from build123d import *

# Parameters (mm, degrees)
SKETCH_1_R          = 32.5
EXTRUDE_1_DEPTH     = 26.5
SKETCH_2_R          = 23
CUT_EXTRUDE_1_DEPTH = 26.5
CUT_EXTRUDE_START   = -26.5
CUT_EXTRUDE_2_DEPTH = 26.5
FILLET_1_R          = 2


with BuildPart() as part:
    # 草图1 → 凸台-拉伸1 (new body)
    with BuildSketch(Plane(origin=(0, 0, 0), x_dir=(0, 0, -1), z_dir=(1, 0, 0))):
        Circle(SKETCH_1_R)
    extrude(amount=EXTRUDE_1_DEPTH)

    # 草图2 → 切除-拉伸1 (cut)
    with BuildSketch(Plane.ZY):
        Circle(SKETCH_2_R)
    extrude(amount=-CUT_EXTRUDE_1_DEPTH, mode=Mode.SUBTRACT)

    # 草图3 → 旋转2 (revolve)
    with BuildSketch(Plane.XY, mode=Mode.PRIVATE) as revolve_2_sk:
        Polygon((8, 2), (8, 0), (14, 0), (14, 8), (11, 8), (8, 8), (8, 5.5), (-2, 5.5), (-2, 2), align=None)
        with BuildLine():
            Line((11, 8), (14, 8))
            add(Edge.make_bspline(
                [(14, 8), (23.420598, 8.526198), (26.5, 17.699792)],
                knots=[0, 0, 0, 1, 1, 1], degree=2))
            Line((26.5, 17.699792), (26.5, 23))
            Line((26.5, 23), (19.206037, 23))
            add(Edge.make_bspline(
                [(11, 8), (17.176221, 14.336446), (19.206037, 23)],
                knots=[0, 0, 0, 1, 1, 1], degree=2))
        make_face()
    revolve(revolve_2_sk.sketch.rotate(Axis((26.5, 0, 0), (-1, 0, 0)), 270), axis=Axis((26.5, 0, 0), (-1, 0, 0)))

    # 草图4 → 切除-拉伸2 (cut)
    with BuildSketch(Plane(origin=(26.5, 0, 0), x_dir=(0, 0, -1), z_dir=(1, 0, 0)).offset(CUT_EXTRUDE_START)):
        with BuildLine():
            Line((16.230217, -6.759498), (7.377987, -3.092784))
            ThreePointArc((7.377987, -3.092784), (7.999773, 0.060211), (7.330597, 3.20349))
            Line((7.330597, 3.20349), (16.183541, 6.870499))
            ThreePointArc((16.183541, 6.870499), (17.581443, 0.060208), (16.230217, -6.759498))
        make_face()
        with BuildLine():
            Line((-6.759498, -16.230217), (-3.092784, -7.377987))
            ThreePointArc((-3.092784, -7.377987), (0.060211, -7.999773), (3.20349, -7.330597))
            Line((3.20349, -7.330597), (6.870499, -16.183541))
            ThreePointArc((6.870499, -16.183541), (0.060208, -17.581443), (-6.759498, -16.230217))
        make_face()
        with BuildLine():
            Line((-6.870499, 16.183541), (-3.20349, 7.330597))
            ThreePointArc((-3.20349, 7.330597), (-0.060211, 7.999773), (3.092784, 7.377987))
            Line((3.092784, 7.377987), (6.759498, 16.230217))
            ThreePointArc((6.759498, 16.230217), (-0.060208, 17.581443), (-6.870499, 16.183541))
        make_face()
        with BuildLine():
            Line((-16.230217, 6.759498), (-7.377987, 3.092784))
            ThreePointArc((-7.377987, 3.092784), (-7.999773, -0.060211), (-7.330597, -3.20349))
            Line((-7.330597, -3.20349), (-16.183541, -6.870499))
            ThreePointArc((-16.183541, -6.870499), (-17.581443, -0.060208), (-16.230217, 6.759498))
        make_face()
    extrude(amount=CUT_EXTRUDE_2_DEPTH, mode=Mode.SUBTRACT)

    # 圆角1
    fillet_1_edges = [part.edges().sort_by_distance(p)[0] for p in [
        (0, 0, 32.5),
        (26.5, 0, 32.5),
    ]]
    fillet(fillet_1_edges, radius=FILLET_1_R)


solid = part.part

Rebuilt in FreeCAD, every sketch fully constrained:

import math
import FreeCAD as App
import Part
import Sketcher
Q = App.Units.Quantity


def edges_at(feature, points):
    """Names of the edges that pass closest to the given points."""
    edges = feature.Shape.Edges
    near = lambda p: min(range(len(edges)), key=lambda i: edges[i].distToShape(Part.Vertex(*p))[0])
    return sorted({f"Edge{near(p) + 1}" for p in points})

doc = App.newDocument("Part")
body = doc.addObject("PartDesign::Body", "Body")

# Sketch on YZ plane
sketch1 = body.newObject("Sketcher::SketchObject", "Sketch")
sketch1.AttachmentSupport = (doc.getObject("YZ_Plane"), [""])
sketch1.MapMode = "FlatFace"
sketch1.addGeometry(Part.Circle(App.Vector(0, 0, 0), App.Vector(0, 0, 1), 32), False)
sketch1.addConstraint(Sketcher.Constraint("Coincident", 0, 3, -1, 1))
sketch1.addConstraint(Sketcher.Constraint("Diameter", 0, Q("65 mm")))
pad1 = body.newObject("PartDesign::Pad", "Pad")
pad1.Profile = sketch1
pad1.Length = 26.5

# Sketch on YZ plane
sketch2 = body.newObject("Sketcher::SketchObject", "Sketch001")
sketch2.AttachmentSupport = (doc.getObject("YZ_Plane"), [""])
sketch2.MapMode = "FlatFace"
sketch2.addGeometry(Part.Circle(App.Vector(0, 0, 0), App.Vector(0, 0, 1), 23), False)
sketch2.addConstraint(Sketcher.Constraint("Coincident", 0, 3, -1, 1))
sketch2.addConstraint(Sketcher.Constraint("Diameter", 0, Q("46 mm")))
pocket1 = body.newObject("PartDesign::Pocket", "Pocket")
pocket1.Profile = sketch2
pocket1.Length = 26.5
pocket1.Reversed = True

# Sketch on XY plane
sketch3 = body.newObject("Sketcher::SketchObject", "Sketch002")
sketch3.AttachmentSupport = (doc.getObject("XY_Plane"), [""])
sketch3.MapMode = "FlatFace"
sketch3.addGeometry(Part.LineSegment(App.Vector(8, 2, 0), App.Vector(8, 0, 0)), False)
sketch3.addGeometry(Part.LineSegment(App.Vector(8, 0, 0), App.Vector(14, 0, 0)), False)
sketch3.addGeometry(Part.LineSegment(App.Vector(14, 0, 0), App.Vector(14, 8, 0)), False)
sketch3.addGeometry(Part.BSplineCurve([App.Vector(14, 8, 0), App.Vector(23.420598, 8.526198, 0), App.Vector(26.5, 17.699792, 0)], [3, 3], [0, 1], False, 2, [1, 1, 1], False), False)
sketch3.addGeometry(Part.LineSegment(App.Vector(26.5, 17.699792, 0), App.Vector(26.5, 23, 0)), False)
sketch3.addGeometry(Part.LineSegment(App.Vector(26.5, 23, 0), App.Vector(19.206037, 23, 0)), False)
sketch3.addGeometry(Part.BSplineCurve([App.Vector(11, 8, 0), App.Vector(17.176221, 14.336446, 0), App.Vector(19.206037, 23, 0)], [3, 3], [0, 1], False, 2, [1, 1, 1], False), False)
sketch3.addGeometry(Part.LineSegment(App.Vector(11, 8, 0), App.Vector(8, 8, 0)), False)
sketch3.addGeometry(Part.LineSegment(App.Vector(8, 8, 0), App.Vector(8, 5.5, 0)), False)
sketch3.addGeometry(Part.LineSegment(App.Vector(8, 5.5, 0), App.Vector(-2, 5.5, 0)), False)
sketch3.addGeometry(Part.LineSegment(App.Vector(-2, 5.5, 0), App.Vector(-2, 2, 0)), False)
sketch3.addGeometry(Part.LineSegment(App.Vector(-2, 2, 0), App.Vector(8, 2, 0)), False)
sketch3.addConstraint(Sketcher.Constraint("Block", 3))
sketch3.addConstraint(Sketcher.Constraint("Block", 6))
sketch3.addConstraint(Sketcher.Constraint("Coincident", 0, 2, 1, 1))
sketch3.addConstraint(Sketcher.Constraint("Coincident", 1, 2, 2, 1))
sketch3.addConstraint(Sketcher.Constraint("Coincident", 2, 2, 3, 1))
sketch3.addConstraint(Sketcher.Constraint("Coincident", 3, 2, 4, 1))
sketch3.addConstraint(Sketcher.Constraint("Coincident", 4, 2, 5, 1))
sketch3.addConstraint(Sketcher.Constraint("Coincident", 5, 2, 6, 2))
sketch3.addConstraint(Sketcher.Constraint("Coincident", 6, 1, 7, 1))
sketch3.addConstraint(Sketcher.Constraint("Coincident", 7, 2, 8, 1))
sketch3.addConstraint(Sketcher.Constraint("Coincident", 8, 2, 9, 1))
sketch3.addConstraint(Sketcher.Constraint("Coincident", 9, 2, 10, 1))
sketch3.addConstraint(Sketcher.Constraint("Coincident", 10, 2, 11, 1))
sketch3.addConstraint(Sketcher.Constraint("Coincident", 11, 2, 0, 1))
sketch3.addConstraint(Sketcher.Constraint("Vertical", 0))
sketch3.addConstraint(Sketcher.Constraint("Horizontal", 1))
sketch3.addConstraint(Sketcher.Constraint("Vertical", 2))
sketch3.addConstraint(Sketcher.Constraint("Vertical", 4))
sketch3.addConstraint(Sketcher.Constraint("Horizontal", 5))
sketch3.addConstraint(Sketcher.Constraint("Horizontal", 7))
sketch3.addConstraint(Sketcher.Constraint("Vertical", 8))
sketch3.addConstraint(Sketcher.Constraint("Horizontal", 9))
sketch3.addConstraint(Sketcher.Constraint("Vertical", 10))
sketch3.addConstraint(Sketcher.Constraint("Horizontal", 11))
sketch3.addConstraint(Sketcher.Constraint("PointOnObject", 0, 2, -1))
sketch3.addConstraint(Sketcher.Constraint("Vertical", 0, 2, 7, 2))
sketch3.addConstraint(Sketcher.Constraint("DistanceX", 1, 1, 1, 2, Q("6 mm")))
sketch3.addConstraint(Sketcher.Constraint("DistanceX", 9, 2, 9, 1, Q("10 mm")))
sketch3.addConstraint(Sketcher.Constraint("DistanceY", 0, 2, 0, 1, Q("2 mm")))
sketch3.addConstraint(Sketcher.Constraint("DistanceY", 8, 2, 8, 1, Q("2.5 mm")))
revolution = body.newObject("PartDesign::Revolution", "Revolution")
revolution.Profile = sketch3
revolution.ReferenceAxis = (sketch3, ["H_Axis"])
revolution.Angle = 360

# Sketch on YZ plane
sketch4 = body.newObject("Sketcher::SketchObject", "Sketch003")
sketch4.AttachmentSupport = (doc.getObject("YZ_Plane"), [""])
sketch4.MapMode = "FlatFace"
sketch4.addGeometry(Part.LineSegment(App.Vector(-3.092784, -7.377987, 0), App.Vector(-6.759498, -16.230217, 0)), False)
sketch4.addGeometry(Part.ArcOfCircle(Part.Circle(App.Vector(0, -0.000002, 0), App.Vector(0, 0, 1), 17.581544), math.radians(-112.610565), math.radians(-66.997017)), False)
sketch4.addGeometry(Part.LineSegment(App.Vector(6.870499, -16.183541, 0), App.Vector(3.20349, -7.330597, 0)), False)
sketch4.addGeometry(Part.ArcOfCircle(Part.Circle(App.Vector(0, 0.000007, 0), App.Vector(0, 0, 1), 8.000007), math.radians(-112.742958), math.radians(-66.394565)), False)
sketch4.addGeometry(Part.LineSegment(App.Vector(-7.377987, 3.092784, 0), App.Vector(-16.230217, 6.759498, 0)), False)
sketch4.addGeometry(Part.ArcOfCircle(Part.Circle(App.Vector(-0.000002, 0, 0), App.Vector(0, 0, 1), 17.581544), math.radians(157.389435), math.radians(203.002983)), False)
sketch4.addGeometry(Part.LineSegment(App.Vector(-16.183541, -6.870499, 0), App.Vector(-7.330597, -3.20349, 0)), False)
sketch4.addGeometry(Part.ArcOfCircle(Part.Circle(App.Vector(0.000007, 0, 0), App.Vector(0, 0, 1), 8.000007), math.radians(157.257042), math.radians(203.605435)), False)
sketch4.addGeometry(Part.LineSegment(App.Vector(16.183541, 6.870499, 0), App.Vector(7.330597, 3.20349, 0)), False)
sketch4.addGeometry(Part.ArcOfCircle(Part.Circle(App.Vector(-0.000007, 0, 0), App.Vector(0, 0, 1), 8.000007), math.radians(-22.742958), math.radians(23.605435)), False)
sketch4.addGeometry(Part.LineSegment(App.Vector(7.377987, -3.092784, 0), App.Vector(16.230217, -6.759498, 0)), False)
sketch4.addGeometry(Part.ArcOfCircle(Part.Circle(App.Vector(0.000002, 0, 0), App.Vector(0, 0, 1), 17.581544), math.radians(-22.610565), math.radians(23.002983)), False)
sketch4.addGeometry(Part.LineSegment(App.Vector(3.092784, 7.377987, 0), App.Vector(6.759498, 16.230217, 0)), False)
sketch4.addGeometry(Part.ArcOfCircle(Part.Circle(App.Vector(0, 0.000002, 0), App.Vector(0, 0, 1), 17.581544), math.radians(67.389435), math.radians(113.002983)), False)
sketch4.addGeometry(Part.LineSegment(App.Vector(-6.870499, 16.183541, 0), App.Vector(-3.20349, 7.330597, 0)), False)
sketch4.addGeometry(Part.ArcOfCircle(Part.Circle(App.Vector(0, -0.000007, 0), App.Vector(0, 0, 1), 8.000007), math.radians(67.257042), math.radians(113.605435)), False)
sketch4.addConstraint(Sketcher.Constraint("Coincident", 0, 2, 1, 1))
sketch4.addConstraint(Sketcher.Constraint("Coincident", 1, 2, 2, 1))
sketch4.addConstraint(Sketcher.Constraint("Coincident", 2, 2, 3, 2))
sketch4.addConstraint(Sketcher.Constraint("Coincident", 3, 1, 0, 1))
sketch4.addConstraint(Sketcher.Constraint("Coincident", 4, 2, 5, 1))
sketch4.addConstraint(Sketcher.Constraint("Coincident", 5, 2, 6, 1))
sketch4.addConstraint(Sketcher.Constraint("Coincident", 6, 2, 7, 2))
sketch4.addConstraint(Sketcher.Constraint("Coincident", 7, 1, 4, 1))
sketch4.addConstraint(Sketcher.Constraint("Coincident", 8, 2, 9, 2))
sketch4.addConstraint(Sketcher.Constraint("Coincident", 9, 1, 10, 1))
sketch4.addConstraint(Sketcher.Constraint("Coincident", 10, 2, 11, 1))
sketch4.addConstraint(Sketcher.Constraint("Coincident", 11, 2, 8, 1))
sketch4.addConstraint(Sketcher.Constraint("Coincident", 12, 2, 13, 1))
sketch4.addConstraint(Sketcher.Constraint("Coincident", 13, 2, 14, 1))
sketch4.addConstraint(Sketcher.Constraint("Coincident", 14, 2, 15, 2))
sketch4.addConstraint(Sketcher.Constraint("Coincident", 15, 1, 12, 1))
sketch4.addConstraint(Sketcher.Constraint("Coincident", 1, 3, -1, 1))
sketch4.addConstraint(Sketcher.Constraint("Coincident", 3, 3, -1, 1))
sketch4.addConstraint(Sketcher.Constraint("Coincident", 5, 3, -1, 1))
sketch4.addConstraint(Sketcher.Constraint("Coincident", 7, 3, -1, 1))
sketch4.addConstraint(Sketcher.Constraint("Coincident", 9, 3, -1, 1))
sketch4.addConstraint(Sketcher.Constraint("Coincident", 11, 3, -1, 1))
sketch4.addConstraint(Sketcher.Constraint("Coincident", 13, 3, -1, 1))
sketch4.addConstraint(Sketcher.Constraint("Coincident", 15, 3, -1, 1))
sketch4.addConstraint(Sketcher.Constraint("Equal", 1, 5))
sketch4.addConstraint(Sketcher.Constraint("Equal", 3, 7))
sketch4.addConstraint(Sketcher.Constraint("Equal", 7, 9))
sketch4.addConstraint(Sketcher.Constraint("Equal", 5, 11))
sketch4.addConstraint(Sketcher.Constraint("Equal", 11, 13))
sketch4.addConstraint(Sketcher.Constraint("Equal", 9, 15))
sketch4.addConstraint(Sketcher.Constraint("Perpendicular", 0, 4))
sketch4.addConstraint(Sketcher.Constraint("Perpendicular", 2, 6))
sketch4.addConstraint(Sketcher.Constraint("Parallel", 6, 8))
sketch4.addConstraint(Sketcher.Constraint("Parallel", 4, 10))
sketch4.addConstraint(Sketcher.Constraint("Perpendicular", 10, 12))
sketch4.addConstraint(Sketcher.Constraint("Perpendicular", 8, 14))
sketch4.addConstraint(Sketcher.Constraint("Equal", 2, 6))
sketch4.addConstraint(Sketcher.Constraint("Equal", 6, 8))
sketch4.addConstraint(Sketcher.Constraint("Equal", 8, 14))
sketch4.addConstraint(Sketcher.Constraint("Angle", 0, Q("-112.500002 deg")))
sketch4.addConstraint(Sketcher.Constraint("Angle", 2, Q("112.499997 deg")))
sketch4.addConstraint(Sketcher.Constraint("Radius", 1, Q("17.581544 mm")))
sketch4.addConstraint(Sketcher.Constraint("Radius", 3, Q("8.000007 mm")))
sketch4.addConstraint(Sketcher.Constraint("DistanceX", -1, 1, 1, 2, Q("6.870499 mm")))
sketch4.addConstraint(Sketcher.Constraint("DistanceX", 0, 2, 15, 3, Q("6.759498 mm")))
sketch4.addConstraint(Sketcher.Constraint("DistanceY", 9, 3, 4, 2, Q("6.759498 mm")))
sketch4.addConstraint(Sketcher.Constraint("DistanceY", 2, 2, 10, 2, Q("0.571099 mm")))
sketch4.addConstraint(Sketcher.Constraint("DistanceX", 12, 2, 8, 2, Q("0.571099 mm")))
pocket2 = body.newObject("PartDesign::Pocket", "Pocket001")
pocket2.Profile = sketch4
pocket2.Length = 26.5
pocket2.Reversed = True
doc.recompute()

fillet = body.newObject("PartDesign::Fillet", "Fillet")
fillet.Base = (pocket2, edges_at(pocket2, [(0, 0, 32.5), (26.5, 0, 32.5)]))
fillet.Radius = 2

doc.recompute()
